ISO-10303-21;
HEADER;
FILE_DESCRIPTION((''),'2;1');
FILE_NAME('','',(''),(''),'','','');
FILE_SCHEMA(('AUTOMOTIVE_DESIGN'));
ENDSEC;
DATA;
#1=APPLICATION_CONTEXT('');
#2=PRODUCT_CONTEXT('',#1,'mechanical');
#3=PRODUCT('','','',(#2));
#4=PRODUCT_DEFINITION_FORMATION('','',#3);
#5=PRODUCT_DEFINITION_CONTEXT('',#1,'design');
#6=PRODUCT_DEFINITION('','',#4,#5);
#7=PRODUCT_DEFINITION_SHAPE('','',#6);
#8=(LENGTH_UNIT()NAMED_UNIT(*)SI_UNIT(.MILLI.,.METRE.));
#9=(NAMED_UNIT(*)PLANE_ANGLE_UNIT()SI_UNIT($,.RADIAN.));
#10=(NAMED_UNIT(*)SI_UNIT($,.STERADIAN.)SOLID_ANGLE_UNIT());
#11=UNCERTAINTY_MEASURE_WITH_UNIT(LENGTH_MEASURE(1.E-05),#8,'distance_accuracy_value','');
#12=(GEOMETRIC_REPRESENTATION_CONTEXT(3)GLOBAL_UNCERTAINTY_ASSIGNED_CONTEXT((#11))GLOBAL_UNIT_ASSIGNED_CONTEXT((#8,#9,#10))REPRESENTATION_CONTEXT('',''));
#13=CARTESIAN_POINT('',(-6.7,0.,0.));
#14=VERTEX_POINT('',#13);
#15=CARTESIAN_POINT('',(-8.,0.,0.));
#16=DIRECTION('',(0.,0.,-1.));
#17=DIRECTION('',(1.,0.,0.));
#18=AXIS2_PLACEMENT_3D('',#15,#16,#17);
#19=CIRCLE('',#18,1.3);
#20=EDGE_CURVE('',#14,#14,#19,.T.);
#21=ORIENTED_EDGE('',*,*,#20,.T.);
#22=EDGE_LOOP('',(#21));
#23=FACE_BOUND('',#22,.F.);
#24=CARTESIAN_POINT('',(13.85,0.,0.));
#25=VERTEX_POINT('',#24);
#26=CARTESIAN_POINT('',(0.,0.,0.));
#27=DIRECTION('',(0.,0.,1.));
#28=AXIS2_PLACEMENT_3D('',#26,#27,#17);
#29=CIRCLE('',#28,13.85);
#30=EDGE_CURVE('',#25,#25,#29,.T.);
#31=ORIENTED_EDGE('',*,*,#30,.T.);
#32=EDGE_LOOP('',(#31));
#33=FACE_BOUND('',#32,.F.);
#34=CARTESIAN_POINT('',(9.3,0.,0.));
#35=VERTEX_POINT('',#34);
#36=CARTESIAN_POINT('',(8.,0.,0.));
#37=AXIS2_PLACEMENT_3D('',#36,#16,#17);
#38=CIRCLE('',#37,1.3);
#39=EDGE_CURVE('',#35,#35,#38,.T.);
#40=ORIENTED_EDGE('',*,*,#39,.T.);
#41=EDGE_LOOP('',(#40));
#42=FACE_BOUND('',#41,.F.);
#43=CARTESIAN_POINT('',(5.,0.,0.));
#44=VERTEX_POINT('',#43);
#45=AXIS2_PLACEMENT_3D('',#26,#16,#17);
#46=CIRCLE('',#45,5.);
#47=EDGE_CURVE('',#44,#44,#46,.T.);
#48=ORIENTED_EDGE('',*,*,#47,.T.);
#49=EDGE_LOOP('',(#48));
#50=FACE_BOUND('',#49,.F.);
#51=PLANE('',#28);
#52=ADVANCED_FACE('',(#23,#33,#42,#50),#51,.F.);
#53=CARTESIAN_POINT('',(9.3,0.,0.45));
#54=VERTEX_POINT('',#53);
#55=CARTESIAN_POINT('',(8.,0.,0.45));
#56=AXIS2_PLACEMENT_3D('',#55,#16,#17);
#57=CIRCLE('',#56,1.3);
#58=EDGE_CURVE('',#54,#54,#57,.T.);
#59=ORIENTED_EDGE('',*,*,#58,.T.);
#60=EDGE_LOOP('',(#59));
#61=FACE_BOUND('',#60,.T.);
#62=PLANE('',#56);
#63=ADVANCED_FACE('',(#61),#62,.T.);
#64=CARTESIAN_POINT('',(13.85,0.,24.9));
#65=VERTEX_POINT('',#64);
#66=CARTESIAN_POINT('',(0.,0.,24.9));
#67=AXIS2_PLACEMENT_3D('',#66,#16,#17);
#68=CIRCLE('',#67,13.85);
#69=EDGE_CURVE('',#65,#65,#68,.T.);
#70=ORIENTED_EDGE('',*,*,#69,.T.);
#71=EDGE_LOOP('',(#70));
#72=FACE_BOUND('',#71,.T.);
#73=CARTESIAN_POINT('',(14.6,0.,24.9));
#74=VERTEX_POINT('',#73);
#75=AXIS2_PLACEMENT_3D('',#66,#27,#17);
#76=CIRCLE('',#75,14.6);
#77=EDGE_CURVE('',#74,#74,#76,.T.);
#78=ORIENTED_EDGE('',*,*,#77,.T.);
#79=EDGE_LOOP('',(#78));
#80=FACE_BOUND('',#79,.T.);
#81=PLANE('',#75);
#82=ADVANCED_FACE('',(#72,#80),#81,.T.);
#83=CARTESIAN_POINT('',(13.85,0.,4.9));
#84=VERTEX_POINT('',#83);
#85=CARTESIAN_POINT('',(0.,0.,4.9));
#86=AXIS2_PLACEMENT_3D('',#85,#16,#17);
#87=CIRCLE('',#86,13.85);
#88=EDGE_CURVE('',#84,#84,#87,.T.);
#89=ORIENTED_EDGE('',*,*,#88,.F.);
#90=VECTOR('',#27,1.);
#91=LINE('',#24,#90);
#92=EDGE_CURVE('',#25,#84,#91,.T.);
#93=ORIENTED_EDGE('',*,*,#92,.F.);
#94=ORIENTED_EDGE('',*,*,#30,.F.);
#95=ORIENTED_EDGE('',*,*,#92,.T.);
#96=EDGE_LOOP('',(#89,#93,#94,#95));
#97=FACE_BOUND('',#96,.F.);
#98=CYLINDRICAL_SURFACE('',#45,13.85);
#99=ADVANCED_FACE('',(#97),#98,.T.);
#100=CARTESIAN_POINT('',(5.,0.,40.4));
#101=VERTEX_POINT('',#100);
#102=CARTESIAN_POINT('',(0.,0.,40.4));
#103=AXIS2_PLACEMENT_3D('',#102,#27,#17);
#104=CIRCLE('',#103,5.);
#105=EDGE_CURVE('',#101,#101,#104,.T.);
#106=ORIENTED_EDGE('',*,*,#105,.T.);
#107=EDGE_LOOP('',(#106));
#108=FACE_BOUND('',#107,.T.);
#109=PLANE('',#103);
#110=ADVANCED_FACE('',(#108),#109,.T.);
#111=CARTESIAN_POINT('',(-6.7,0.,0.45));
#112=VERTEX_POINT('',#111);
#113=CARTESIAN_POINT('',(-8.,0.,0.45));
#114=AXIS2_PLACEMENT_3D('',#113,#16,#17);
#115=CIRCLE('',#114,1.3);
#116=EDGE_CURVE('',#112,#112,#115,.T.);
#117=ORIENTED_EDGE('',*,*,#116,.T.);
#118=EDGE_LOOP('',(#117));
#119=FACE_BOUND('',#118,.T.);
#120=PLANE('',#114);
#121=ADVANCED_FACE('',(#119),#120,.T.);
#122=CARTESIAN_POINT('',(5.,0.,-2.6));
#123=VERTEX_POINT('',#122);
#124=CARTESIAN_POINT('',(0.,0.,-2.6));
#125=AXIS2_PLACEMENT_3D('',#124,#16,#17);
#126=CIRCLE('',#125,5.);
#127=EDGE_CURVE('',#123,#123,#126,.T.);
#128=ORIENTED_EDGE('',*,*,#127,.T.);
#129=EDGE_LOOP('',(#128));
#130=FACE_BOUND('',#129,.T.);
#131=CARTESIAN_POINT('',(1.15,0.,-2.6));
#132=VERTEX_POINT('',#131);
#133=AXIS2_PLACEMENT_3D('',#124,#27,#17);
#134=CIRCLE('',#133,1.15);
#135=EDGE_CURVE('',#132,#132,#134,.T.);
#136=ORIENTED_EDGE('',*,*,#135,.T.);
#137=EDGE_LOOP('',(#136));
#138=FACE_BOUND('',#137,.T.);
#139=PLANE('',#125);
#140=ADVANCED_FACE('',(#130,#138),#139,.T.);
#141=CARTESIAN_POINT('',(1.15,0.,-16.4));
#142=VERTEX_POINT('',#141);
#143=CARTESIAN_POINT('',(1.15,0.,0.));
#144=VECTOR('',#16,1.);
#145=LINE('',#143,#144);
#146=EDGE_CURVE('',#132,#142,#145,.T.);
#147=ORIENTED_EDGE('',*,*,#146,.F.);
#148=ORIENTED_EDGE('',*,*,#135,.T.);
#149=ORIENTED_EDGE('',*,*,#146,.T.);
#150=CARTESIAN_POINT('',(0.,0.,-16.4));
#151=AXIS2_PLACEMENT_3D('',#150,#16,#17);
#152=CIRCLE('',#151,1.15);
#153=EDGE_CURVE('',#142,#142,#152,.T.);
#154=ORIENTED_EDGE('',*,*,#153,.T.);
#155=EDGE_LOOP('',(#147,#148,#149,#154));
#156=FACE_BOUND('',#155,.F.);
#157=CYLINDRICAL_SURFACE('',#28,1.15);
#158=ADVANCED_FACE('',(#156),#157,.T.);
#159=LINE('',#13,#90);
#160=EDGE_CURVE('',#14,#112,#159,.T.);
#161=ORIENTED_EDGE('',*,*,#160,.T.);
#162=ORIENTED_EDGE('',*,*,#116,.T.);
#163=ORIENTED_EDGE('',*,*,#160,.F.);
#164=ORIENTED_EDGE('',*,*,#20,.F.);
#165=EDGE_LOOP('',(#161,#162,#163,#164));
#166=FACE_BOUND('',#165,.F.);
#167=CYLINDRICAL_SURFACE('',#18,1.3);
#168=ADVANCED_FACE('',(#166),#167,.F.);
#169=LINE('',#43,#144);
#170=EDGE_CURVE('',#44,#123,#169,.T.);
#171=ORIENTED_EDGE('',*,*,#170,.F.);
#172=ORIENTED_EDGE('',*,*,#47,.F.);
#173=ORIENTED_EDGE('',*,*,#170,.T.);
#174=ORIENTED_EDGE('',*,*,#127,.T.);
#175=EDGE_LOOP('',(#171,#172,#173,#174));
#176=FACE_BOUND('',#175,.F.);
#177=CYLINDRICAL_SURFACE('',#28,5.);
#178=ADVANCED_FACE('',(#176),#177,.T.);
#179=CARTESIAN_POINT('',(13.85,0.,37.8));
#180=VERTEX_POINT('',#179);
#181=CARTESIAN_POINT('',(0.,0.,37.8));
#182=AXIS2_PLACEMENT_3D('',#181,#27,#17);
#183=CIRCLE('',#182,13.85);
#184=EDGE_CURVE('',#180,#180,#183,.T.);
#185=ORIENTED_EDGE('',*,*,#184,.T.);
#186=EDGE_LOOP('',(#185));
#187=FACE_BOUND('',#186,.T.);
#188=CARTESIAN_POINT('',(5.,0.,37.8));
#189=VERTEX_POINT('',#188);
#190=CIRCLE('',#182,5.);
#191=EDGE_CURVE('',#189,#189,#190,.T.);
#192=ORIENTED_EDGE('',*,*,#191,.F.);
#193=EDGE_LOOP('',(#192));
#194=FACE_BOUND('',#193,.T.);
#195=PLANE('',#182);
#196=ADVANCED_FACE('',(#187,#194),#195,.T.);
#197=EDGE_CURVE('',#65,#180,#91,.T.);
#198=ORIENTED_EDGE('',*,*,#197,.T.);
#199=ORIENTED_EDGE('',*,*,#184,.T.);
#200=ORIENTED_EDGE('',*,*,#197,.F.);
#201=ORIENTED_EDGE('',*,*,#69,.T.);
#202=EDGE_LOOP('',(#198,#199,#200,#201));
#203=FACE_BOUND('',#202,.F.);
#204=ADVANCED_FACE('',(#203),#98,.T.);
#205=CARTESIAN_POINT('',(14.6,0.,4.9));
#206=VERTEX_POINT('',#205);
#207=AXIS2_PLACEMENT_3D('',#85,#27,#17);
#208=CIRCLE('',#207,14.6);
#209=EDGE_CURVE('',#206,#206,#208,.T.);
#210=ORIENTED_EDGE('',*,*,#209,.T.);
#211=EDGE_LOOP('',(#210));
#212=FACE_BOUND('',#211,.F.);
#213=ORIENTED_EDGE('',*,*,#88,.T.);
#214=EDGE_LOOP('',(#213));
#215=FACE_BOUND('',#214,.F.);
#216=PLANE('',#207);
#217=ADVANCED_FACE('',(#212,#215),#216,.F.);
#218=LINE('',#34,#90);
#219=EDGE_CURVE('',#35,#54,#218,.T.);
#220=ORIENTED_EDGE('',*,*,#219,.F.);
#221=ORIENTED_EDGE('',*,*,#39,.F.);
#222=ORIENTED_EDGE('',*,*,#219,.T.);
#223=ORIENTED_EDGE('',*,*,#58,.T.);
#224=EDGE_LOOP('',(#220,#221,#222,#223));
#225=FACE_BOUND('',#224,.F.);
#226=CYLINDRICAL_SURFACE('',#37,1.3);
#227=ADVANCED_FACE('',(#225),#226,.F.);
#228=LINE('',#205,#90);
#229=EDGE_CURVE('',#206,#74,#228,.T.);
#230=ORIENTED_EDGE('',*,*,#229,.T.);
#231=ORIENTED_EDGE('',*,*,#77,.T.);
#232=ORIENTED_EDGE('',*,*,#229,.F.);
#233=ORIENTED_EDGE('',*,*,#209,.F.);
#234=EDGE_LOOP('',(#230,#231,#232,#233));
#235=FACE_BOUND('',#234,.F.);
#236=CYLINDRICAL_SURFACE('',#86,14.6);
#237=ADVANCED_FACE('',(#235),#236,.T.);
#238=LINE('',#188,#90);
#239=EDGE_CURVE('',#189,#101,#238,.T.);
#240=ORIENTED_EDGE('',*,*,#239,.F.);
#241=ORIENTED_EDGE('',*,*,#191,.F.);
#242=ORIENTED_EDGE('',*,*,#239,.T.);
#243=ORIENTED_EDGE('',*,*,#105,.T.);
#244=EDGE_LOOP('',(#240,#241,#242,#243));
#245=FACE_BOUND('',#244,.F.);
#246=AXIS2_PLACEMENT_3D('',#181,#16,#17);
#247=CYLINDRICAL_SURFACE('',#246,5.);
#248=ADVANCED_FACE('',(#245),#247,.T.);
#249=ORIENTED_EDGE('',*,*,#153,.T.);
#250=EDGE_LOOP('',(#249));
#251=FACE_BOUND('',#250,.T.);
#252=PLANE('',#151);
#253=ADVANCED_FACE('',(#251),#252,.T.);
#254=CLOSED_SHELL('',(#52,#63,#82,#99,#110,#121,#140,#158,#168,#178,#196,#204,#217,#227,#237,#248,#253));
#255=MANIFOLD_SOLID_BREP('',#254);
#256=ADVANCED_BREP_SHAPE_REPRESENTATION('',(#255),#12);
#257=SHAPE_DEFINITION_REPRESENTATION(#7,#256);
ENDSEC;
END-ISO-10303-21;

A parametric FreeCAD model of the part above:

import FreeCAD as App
import Part
import Sketcher
Q = App.Units.Quantity

doc = App.newDocument("Part")
body = doc.addObject("PartDesign::Body", "Body")

sketch1 = doc.addObject("Sketcher::SketchObject", "Sketch")
body.addObject(sketch1)
sketch1.AttachmentSupport = (doc.XY_Plane, [""])
sketch1.MapMode = "FlatFace"
sketch1.addGeometry(Part.Circle(App.Vector(0, 0, 0), App.Vector(0, 0, 1), 14), False)
sketch1.addConstraint([
    Sketcher.Constraint("Coincident", 0, 3, -1, 1),
    Sketcher.Constraint("Diameter", 0, Q("27.7 mm")),
])
pad1 = doc.addObject("PartDesign::Pad", "Pad")
body.addObject(pad1)
pad1.Profile = sketch1
pad1.Length = 37.8

sketch2 = doc.addObject("Sketcher::SketchObject", "Sketch001")
body.addObject(sketch2)
sketch2.AttachmentSupport = (doc.XY_Plane, [""])
sketch2.MapMode = "FlatFace"
sketch2.AttachmentOffset = App.Placement(App.Vector(0, 0, 4.9), App.Rotation())
sketch2.addGeometry(Part.Circle(App.Vector(0, 0, 0), App.Vector(0, 0, 1), 15), False)
sketch2.addConstraint([
    Sketcher.Constraint("Coincident", 0, 3, -1, 1),
    Sketcher.Constraint("Diameter", 0, Q("29.2 mm")),
])
pad2 = doc.addObject("PartDesign::Pad", "Pad001")
body.addObject(pad2)
pad2.Profile = sketch2
pad2.Length = 20

sketch3 = doc.addObject("Sketcher::SketchObject", "Sketch002")
body.addObject(sketch3)
sketch3.AttachmentSupport = (doc.XY_Plane, [""])
sketch3.MapMode = "FlatFace"
sketch3.AttachmentOffset = App.Placement(App.Vector(0, 0, 37.8), App.Rotation())
sketch3.addGeometry(Part.Circle(App.Vector(0, 0, 0), App.Vector(0, 0, 1), 5), False)
sketch3.addConstraint([
    Sketcher.Constraint("Coincident", 0, 3, -1, 1),
    Sketcher.Constraint("Diameter", 0, Q("10 mm")),
])
pad3 = doc.addObject("PartDesign::Pad", "Pad002")
body.addObject(pad3)
pad3.Profile = sketch3
pad3.Length = 2.6

sketch4 = doc.addObject("Sketcher::SketchObject", "Sketch003")
body.addObject(sketch4)
sketch4.AttachmentSupport = (doc.XY_Plane, [""])
sketch4.MapMode = "FlatFace"
sketch4.addGeometry(Part.Circle(App.Vector(0, 0, 0), App.Vector(0, 0, 1), 1.1), False)
sketch4.addConstraint([
    Sketcher.Constraint("Coincident", 0, 3, -1, 1),
    Sketcher.Constraint("Diameter", 0, Q("2.3 mm")),
])
pad4 = doc.addObject("PartDesign::Pad", "Pad003")
body.addObject(pad4)
pad4.Profile = sketch4
pad4.Length = 16.4
pad4.Reversed = True

sketch5 = doc.addObject("Sketcher::SketchObject", "Sketch004")
body.addObject(sketch5)
sketch5.AttachmentSupport = (doc.XY_Plane, [""])
sketch5.MapMode = "FlatFace"
sketch5.addGeometry(Part.Circle(App.Vector(0, 0, 0), App.Vector(0, 0, 1), 5), False)
sketch5.addConstraint([
    Sketcher.Constraint("Coincident", 0, 3, -1, 1),
    Sketcher.Constraint("Diameter", 0, Q("10 mm")),
])
pad5 = doc.addObject("PartDesign::Pad", "Pad004")
body.addObject(pad5)
pad5.Profile = sketch5
pad5.Length = 2.6
pad5.Reversed = True

sketch6 = doc.addObject("Sketcher::SketchObject", "Sketch005")
body.addObject(sketch6)
sketch6.AttachmentSupport = (doc.XY_Plane, [""])
sketch6.MapMode = "FlatFace"
sketch6.addGeometry([
    Part.Circle(App.Vector(8, 0, 0), App.Vector(0, 0, 1), 1.3),
    Part.Circle(App.Vector(-8, 0, 0), App.Vector(0, 0, 1), 1.3),
], False)
sketch6.addConstraint([
    Sketcher.Constraint("Equal", 0, 1),
    Sketcher.Constraint("Symmetric", 0, 3, 1, 3, -1, 1),
    Sketcher.Constraint("PointOnObject", 0, 3, -1),
    Sketcher.Constraint("Diameter", 0, Q("2.6 mm")),
    Sketcher.Constraint("DistanceX", -1, 1, 0, 3, Q("8 mm")),
])
pocket1 = doc.addObject("PartDesign::Pocket", "Pocket")
body.addObject(pocket1)
pocket1.Profile = sketch6
pocket1.Length = 0.45
pocket1.Reversed = True

doc.recompute()
